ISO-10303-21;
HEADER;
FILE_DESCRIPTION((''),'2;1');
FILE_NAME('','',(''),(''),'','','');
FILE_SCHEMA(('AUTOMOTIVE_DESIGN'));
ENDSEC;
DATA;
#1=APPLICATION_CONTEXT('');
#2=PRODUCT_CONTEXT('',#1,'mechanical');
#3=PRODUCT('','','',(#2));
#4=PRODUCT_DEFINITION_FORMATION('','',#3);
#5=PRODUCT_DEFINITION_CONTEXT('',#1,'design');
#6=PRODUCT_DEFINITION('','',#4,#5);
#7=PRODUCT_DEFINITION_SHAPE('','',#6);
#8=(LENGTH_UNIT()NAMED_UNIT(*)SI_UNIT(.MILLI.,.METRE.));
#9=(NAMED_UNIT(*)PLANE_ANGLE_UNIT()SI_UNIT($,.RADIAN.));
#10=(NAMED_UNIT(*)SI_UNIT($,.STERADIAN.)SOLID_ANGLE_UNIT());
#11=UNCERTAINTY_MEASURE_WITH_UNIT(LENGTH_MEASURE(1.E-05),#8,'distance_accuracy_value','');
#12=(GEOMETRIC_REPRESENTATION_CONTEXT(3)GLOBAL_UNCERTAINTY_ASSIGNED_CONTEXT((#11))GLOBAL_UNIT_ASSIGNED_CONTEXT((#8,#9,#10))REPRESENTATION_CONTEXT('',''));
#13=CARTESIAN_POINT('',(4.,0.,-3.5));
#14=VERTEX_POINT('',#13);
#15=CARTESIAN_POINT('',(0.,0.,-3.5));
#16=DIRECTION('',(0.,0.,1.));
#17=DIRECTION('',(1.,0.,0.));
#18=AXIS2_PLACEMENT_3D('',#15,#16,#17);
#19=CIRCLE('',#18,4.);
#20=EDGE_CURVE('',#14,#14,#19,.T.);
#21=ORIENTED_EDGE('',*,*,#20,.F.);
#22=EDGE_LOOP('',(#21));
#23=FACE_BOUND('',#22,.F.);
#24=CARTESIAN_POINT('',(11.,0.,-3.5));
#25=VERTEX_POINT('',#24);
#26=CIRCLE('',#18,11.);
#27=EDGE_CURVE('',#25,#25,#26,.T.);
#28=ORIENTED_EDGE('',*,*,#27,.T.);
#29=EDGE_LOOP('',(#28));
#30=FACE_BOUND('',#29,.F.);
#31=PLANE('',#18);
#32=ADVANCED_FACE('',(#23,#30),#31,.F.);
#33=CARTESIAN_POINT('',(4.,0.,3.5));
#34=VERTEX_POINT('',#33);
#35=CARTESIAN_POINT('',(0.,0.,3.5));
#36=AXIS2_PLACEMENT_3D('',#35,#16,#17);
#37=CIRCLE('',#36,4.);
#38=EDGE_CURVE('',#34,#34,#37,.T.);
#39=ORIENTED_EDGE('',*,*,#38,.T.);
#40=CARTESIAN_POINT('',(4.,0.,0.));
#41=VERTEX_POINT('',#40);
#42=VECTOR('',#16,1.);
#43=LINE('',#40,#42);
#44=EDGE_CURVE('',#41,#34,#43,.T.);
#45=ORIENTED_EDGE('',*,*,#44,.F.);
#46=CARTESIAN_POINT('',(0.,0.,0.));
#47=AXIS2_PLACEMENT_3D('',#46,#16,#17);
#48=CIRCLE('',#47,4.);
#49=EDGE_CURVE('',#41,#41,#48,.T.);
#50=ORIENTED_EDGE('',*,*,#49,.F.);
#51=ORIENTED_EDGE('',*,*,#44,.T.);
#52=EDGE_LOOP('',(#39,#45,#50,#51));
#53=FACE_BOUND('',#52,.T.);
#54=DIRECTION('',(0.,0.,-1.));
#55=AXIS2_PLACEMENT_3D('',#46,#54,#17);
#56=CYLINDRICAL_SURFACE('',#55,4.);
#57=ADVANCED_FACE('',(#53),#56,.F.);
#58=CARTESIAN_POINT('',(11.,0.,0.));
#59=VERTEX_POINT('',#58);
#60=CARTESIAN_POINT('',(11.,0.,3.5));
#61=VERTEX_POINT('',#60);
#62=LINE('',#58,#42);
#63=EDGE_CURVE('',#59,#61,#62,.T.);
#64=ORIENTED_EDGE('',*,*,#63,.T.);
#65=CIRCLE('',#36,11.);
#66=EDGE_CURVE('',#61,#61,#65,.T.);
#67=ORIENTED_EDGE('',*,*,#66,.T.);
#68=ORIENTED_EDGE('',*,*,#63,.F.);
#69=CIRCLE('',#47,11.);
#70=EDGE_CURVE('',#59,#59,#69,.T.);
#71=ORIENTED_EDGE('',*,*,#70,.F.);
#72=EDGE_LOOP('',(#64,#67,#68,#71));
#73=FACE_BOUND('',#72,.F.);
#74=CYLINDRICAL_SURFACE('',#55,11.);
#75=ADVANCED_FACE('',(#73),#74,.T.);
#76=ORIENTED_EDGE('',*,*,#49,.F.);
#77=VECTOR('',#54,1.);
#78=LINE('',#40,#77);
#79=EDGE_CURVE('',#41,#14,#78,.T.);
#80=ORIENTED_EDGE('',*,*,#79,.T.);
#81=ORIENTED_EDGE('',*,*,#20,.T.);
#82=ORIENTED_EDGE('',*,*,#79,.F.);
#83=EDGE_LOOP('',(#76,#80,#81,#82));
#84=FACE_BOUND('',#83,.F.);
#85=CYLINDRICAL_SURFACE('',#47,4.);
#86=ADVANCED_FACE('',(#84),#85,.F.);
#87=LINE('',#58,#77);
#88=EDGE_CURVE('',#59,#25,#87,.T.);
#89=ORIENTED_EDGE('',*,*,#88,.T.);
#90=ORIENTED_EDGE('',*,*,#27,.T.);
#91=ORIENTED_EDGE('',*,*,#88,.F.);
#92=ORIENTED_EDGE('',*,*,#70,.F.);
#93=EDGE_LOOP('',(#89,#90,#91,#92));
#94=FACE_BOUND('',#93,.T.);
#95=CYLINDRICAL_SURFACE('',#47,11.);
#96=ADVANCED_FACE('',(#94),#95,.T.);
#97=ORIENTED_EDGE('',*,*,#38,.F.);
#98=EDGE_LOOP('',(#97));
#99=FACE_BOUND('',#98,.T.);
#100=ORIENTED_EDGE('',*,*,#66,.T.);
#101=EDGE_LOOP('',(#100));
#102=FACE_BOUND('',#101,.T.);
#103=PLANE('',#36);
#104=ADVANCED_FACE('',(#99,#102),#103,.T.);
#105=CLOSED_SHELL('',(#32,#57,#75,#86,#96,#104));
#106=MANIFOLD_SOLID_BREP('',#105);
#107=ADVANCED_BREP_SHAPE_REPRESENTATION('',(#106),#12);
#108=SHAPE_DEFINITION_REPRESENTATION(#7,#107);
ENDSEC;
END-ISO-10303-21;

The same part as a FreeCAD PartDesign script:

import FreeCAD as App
import Part
import Sketcher
from FreeCAD import Vector

doc = App.newDocument("Part")
body = doc.addObject("PartDesign::Body", "Body")

# Sketch on XY plane
sketch1 = body.newObject("Sketcher::SketchObject", "Sketch")
sketch1.AttachmentSupport = (doc.getObject("XY_Plane"), [""])
sketch1.MapMode = "FlatFace"
sketch1.addGeometry([
    Part.Circle(Vector(0, 0, 0), Vector(0, 0, 1), 11),
    Part.Circle(Vector(0, 0, 0), Vector(0, 0, 1), 4),
], False)
sketch1.addConstraint([
    Sketcher.Constraint("Coincident", 0, 3, -1, 1),
    Sketcher.Constraint("Coincident", 1, 3, -1, 1),
    Sketcher.Constraint("Diameter", 0, 22.0),
    Sketcher.Constraint("Diameter", 1, 8.0),
])
pad1 = body.newObject("PartDesign::Pad", "Pad")
pad1.Profile = sketch1
pad1.Length = 7
pad1.Midplane = True

doc.recompute()
